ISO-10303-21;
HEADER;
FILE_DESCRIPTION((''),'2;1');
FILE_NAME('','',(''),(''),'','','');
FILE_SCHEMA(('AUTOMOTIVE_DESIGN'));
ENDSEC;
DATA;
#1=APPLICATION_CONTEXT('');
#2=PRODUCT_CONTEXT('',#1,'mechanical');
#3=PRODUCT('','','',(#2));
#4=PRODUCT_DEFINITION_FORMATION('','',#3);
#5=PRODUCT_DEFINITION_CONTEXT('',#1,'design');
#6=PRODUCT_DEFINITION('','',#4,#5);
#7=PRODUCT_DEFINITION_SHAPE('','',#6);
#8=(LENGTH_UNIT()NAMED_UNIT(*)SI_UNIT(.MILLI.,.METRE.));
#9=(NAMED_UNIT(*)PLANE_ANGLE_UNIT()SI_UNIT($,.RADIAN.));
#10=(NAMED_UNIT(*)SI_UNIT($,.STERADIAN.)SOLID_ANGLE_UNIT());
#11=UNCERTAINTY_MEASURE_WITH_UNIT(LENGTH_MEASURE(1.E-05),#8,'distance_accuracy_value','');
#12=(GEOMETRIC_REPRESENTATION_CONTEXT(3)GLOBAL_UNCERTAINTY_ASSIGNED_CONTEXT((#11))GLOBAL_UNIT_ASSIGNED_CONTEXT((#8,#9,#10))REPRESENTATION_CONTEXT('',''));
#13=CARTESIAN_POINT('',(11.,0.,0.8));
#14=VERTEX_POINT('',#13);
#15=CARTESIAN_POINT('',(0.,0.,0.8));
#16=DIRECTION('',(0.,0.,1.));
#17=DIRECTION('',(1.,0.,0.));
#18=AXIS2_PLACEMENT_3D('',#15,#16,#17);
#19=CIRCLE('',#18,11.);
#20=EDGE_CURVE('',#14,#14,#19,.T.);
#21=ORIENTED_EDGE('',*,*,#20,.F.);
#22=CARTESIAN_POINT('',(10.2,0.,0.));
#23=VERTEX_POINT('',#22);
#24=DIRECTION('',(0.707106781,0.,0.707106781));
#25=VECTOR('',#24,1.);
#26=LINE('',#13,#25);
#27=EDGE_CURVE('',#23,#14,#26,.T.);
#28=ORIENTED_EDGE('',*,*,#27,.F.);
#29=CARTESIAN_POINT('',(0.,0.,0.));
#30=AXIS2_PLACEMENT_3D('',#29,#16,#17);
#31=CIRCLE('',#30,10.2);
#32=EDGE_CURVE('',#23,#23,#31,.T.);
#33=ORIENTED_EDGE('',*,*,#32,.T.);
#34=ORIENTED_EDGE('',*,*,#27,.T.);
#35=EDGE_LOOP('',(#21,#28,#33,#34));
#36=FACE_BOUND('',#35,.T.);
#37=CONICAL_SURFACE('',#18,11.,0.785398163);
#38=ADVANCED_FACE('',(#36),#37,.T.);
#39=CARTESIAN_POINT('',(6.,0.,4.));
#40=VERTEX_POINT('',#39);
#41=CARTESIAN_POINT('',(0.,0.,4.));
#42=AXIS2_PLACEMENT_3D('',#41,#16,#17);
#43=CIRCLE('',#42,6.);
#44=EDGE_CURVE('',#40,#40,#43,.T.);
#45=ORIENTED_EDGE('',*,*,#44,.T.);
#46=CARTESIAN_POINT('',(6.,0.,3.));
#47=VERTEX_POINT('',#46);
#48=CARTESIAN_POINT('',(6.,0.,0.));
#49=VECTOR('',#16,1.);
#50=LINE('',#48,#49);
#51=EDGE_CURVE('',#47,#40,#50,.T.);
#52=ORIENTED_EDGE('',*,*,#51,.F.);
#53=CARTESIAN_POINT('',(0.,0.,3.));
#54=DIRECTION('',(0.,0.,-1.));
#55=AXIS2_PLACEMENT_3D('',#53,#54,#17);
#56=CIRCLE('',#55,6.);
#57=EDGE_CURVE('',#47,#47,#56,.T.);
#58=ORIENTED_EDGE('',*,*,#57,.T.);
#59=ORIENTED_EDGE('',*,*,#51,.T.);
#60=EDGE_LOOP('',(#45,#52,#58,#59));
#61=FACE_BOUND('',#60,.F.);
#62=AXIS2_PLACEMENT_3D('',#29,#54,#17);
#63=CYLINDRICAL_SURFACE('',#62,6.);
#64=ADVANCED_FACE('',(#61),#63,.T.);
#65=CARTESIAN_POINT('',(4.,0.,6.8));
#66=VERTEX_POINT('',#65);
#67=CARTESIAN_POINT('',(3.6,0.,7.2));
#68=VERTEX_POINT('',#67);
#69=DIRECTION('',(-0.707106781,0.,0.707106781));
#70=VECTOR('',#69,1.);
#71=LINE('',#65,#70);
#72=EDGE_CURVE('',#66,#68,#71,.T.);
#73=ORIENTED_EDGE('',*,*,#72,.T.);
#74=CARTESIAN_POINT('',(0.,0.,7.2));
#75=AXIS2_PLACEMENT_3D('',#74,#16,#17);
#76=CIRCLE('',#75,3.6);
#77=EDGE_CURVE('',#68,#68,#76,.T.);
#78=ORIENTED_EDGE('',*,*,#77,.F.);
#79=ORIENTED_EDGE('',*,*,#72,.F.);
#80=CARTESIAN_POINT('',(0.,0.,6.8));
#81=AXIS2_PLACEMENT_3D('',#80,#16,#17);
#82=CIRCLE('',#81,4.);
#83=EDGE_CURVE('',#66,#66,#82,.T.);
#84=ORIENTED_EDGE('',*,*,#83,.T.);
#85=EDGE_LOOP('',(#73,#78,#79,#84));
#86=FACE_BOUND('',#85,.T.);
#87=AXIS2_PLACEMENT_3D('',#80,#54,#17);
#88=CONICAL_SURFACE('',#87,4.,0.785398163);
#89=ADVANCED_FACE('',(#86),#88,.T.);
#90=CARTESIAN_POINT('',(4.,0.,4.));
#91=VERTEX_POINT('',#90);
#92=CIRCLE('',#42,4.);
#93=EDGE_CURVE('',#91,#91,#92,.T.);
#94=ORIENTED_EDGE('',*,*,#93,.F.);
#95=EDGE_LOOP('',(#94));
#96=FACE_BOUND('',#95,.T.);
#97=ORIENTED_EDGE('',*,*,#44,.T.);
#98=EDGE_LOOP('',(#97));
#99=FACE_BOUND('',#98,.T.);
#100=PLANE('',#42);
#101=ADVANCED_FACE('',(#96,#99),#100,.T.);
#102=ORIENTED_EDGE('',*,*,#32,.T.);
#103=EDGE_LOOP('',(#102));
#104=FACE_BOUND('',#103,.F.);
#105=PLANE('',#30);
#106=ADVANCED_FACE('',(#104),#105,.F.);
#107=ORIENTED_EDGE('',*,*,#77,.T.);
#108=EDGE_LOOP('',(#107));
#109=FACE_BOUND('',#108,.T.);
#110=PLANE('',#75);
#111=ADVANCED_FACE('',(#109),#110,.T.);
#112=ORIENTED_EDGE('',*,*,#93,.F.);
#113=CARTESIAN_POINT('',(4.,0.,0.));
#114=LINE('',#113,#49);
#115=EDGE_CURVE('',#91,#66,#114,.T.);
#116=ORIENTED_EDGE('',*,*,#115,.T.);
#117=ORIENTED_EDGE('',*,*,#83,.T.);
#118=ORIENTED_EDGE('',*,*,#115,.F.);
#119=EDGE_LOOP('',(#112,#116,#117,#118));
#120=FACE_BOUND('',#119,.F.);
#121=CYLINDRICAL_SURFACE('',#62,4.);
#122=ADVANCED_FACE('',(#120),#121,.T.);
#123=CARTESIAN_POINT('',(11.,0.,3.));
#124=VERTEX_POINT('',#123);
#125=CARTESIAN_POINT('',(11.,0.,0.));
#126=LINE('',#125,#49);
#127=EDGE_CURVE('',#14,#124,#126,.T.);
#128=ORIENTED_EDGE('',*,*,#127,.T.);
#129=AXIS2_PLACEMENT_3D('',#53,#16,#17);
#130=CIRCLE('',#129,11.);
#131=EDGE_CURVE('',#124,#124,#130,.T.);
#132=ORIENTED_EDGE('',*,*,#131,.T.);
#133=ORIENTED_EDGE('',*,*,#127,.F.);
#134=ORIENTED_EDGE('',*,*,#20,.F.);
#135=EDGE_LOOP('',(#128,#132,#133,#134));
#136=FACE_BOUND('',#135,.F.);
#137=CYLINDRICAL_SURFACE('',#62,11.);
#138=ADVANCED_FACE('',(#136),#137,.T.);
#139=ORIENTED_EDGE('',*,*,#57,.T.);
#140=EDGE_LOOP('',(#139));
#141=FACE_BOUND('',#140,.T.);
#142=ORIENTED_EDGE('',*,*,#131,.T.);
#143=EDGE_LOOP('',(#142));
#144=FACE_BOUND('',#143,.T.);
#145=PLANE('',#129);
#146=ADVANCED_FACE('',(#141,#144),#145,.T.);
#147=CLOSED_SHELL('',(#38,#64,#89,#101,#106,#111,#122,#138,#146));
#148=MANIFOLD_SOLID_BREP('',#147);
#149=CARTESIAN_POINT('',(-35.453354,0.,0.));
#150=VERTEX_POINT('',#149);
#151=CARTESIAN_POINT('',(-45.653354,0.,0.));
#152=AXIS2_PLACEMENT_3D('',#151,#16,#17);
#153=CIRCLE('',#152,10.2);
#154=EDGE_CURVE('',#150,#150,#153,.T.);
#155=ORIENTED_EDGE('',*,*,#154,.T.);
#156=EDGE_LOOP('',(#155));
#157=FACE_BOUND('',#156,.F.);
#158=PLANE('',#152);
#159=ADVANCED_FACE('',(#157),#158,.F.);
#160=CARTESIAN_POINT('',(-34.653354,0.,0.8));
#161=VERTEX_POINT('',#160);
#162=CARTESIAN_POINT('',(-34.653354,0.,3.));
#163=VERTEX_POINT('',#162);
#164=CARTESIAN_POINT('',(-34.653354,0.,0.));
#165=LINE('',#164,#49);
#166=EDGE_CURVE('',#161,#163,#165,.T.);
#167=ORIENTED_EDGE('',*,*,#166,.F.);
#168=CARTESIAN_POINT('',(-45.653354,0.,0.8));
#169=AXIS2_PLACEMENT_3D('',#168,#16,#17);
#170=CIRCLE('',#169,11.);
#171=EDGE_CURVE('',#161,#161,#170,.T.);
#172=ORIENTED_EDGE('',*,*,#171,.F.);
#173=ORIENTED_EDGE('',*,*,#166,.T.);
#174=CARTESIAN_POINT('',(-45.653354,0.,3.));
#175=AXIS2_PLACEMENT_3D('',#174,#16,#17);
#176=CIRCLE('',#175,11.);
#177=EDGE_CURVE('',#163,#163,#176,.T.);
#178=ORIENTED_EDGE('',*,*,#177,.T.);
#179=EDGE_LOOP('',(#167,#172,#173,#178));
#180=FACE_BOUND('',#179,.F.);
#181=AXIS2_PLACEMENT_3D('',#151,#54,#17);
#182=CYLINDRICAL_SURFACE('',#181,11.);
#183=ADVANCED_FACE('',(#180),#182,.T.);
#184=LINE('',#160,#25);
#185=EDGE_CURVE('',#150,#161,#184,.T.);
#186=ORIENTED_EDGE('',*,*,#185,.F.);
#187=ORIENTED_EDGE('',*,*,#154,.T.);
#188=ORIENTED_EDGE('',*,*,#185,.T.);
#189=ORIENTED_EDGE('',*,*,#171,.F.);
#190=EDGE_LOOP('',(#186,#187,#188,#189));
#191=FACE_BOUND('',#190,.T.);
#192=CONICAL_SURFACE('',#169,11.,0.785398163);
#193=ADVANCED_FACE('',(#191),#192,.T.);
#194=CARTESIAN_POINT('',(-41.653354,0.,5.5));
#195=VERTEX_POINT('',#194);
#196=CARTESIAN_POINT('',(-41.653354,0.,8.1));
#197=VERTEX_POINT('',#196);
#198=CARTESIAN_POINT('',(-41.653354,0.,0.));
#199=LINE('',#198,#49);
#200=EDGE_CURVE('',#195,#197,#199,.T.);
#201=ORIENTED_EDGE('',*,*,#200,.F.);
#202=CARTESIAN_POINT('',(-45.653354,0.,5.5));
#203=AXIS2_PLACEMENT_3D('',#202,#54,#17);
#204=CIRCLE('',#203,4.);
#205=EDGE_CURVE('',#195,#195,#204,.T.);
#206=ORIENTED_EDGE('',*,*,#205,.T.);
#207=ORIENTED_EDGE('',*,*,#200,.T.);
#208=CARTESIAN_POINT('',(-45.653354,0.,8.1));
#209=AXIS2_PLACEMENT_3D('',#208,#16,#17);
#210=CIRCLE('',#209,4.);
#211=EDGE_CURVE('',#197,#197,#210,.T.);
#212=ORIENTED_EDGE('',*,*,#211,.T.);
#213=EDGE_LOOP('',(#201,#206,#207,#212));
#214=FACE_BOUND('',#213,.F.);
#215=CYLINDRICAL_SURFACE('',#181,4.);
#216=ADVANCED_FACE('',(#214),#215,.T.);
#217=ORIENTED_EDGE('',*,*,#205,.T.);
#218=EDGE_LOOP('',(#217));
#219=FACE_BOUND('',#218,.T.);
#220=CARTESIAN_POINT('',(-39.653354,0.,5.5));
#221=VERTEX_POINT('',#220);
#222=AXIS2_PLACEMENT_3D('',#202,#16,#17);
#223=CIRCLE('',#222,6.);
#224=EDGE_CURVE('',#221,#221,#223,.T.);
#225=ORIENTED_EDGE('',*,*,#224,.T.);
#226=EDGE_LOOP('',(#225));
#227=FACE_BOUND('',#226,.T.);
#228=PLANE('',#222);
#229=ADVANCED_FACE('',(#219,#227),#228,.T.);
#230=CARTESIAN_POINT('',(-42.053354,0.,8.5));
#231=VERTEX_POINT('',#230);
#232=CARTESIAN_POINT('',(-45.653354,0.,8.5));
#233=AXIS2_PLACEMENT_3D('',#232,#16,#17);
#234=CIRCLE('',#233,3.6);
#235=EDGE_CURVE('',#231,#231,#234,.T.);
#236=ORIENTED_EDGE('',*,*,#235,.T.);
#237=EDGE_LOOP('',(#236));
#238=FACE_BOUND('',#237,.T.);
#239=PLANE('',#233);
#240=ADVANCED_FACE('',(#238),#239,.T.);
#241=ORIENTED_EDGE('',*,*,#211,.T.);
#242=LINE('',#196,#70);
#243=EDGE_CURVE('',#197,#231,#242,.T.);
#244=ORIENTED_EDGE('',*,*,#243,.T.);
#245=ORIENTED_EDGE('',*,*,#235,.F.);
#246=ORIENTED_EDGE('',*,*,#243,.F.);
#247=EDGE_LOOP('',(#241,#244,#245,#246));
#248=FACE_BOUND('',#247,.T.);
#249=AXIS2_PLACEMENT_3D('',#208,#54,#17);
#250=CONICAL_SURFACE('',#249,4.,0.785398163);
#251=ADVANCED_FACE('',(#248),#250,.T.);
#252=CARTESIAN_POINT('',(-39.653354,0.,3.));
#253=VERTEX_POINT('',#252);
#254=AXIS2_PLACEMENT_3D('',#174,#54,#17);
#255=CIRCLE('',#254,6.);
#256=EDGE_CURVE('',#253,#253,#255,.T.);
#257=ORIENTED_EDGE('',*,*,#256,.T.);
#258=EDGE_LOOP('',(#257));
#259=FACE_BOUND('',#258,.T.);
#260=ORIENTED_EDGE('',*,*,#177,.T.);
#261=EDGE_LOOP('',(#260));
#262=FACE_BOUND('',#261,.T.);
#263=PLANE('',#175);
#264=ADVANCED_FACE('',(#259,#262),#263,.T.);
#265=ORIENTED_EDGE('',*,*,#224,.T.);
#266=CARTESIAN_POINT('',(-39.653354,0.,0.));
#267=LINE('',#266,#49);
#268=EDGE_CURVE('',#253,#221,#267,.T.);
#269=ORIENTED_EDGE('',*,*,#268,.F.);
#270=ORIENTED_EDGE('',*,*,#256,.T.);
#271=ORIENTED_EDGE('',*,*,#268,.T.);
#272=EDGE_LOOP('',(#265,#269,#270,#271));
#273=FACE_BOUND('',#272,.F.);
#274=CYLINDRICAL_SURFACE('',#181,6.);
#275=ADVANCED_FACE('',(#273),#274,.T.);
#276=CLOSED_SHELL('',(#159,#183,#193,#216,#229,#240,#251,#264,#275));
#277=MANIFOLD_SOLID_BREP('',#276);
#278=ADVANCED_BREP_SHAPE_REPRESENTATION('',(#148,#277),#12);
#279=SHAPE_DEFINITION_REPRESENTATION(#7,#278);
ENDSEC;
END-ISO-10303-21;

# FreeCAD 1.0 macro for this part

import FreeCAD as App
import Part
import Sketcher
Q = App.Units.Quantity


def edges_at(feature, points):
    """Names of the edges that pass closest to the given points."""
    edges = feature.Shape.Edges
    near = lambda p: min(range(len(edges)), key=lambda i: edges[i].distToShape(Part.Vertex(*p))[0])
    return sorted({f"Edge{near(p) + 1}" for p in points})

doc = App.newDocument("Part")
params = doc.addObject("Spreadsheet::Sheet", "Params")
for row, (alias, value) in enumerate([
    ("sketch1_diameter", "22 mm"),
    ("sketch1_diameter2", "8 mm"),
    ("pad1_length", "3 mm"),
    ("sketch2_diameter", "12 mm"),
    ("pad2_length", "5.5 mm"),
    ("sketch3_diameter", "8 mm"),
    ("pad3_length", "8.5 mm"),
    ("chamfer_size", "0.8 mm"),
    ("chamfer2_size", "0.4 mm"),
    ("sketch4_diameter", "22 mm"),
    ("pad4_length", "3 mm"),
    ("sketch5_diameter", "12 mm"),
    ("sketch5_diameter2", "8 mm"),
    ("pad5_length", "4 mm"),
    ("sketch6_diameter", "8 mm"),
    ("pad6_length", "7.2 mm"),
    ("chamfer3_size", "0.8 mm"),
    ("chamfer4_size", "0.4 mm"),
], start=1):
    params.set(f"A{row}", alias)
    params.set(f"B{row}", "=" + value)
    params.setAlias(f"B{row}", alias)

body = doc.addObject("PartDesign::Body", "Body")

sketch1 = body.newObject("Sketcher::SketchObject", "Sketch")
sketch1.AttachmentSupport = (doc.getObject("XY_Plane"), [""])
sketch1.MapMode = "FlatFace"
sketch1.addGeometry([
    Part.Circle(App.Vector(-45.7, 0, 0), App.Vector(0, 0, 1), 11),
    Part.Circle(App.Vector(-45.7, 0, 0), App.Vector(0, 0, 1), 4),
], False)
sketch1.addConstraint([
    Sketcher.Constraint("Coincident", 1, 3, 0, 3),
    Sketcher.Constraint("PointOnObject", 0, 3, -1),
    Sketcher.Constraint("Diameter", 0, Q("22 mm")),
    Sketcher.Constraint("Diameter", 1, Q("8 mm")),
    Sketcher.Constraint("DistanceX", 0, 3, -1, 1, Q("45.653354 mm")),
])
sketch1.setExpression("Constraints[2]", "Params.sketch1_diameter")
sketch1.setExpression("Constraints[3]", "Params.sketch1_diameter2")
pad1 = body.newObject("PartDesign::Pad", "Pad")
pad1.Profile = sketch1
pad1.setExpression("Length", "Params.pad1_length")

sketch2 = body.newObject("Sketcher::SketchObject", "Sketch001")
sketch2.AttachmentSupport = (doc.getObject("XY_Plane"), [""])
sketch2.MapMode = "FlatFace"
sketch2.addGeometry(Part.Circle(App.Vector(-46, 0, 0), App.Vector(0, 0, 1), 6), False)
sketch2.addConstraint([
    Sketcher.Constraint("PointOnObject", 0, 3, -1),
    Sketcher.Constraint("Diameter", 0, Q("12 mm")),
    Sketcher.Constraint("DistanceX", 0, 3, -1, 1, Q("45.653354 mm")),
])
sketch2.setExpression("Constraints[1]", "Params.sketch2_diameter")
pad2 = body.newObject("PartDesign::Pad", "Pad001")
pad2.Profile = sketch2
pad2.setExpression("Length", "Params.pad2_length")

sketch3 = body.newObject("Sketcher::SketchObject", "Sketch002")
sketch3.AttachmentSupport = (doc.getObject("XY_Plane"), [""])
sketch3.MapMode = "FlatFace"
sketch3.addGeometry(Part.Circle(App.Vector(-45.7, 0, 0), App.Vector(0, 0, 1), 4), False)
sketch3.addConstraint([
    Sketcher.Constraint("PointOnObject", 0, 3, -1),
    Sketcher.Constraint("Diameter", 0, Q("8 mm")),
    Sketcher.Constraint("DistanceX", 0, 3, -1, 1, Q("45.653354 mm")),
])
sketch3.setExpression("Constraints[1]", "Params.sketch3_diameter")
pad3 = body.newObject("PartDesign::Pad", "Pad002")
pad3.Profile = sketch3
pad3.setExpression("Length", "Params.pad3_length")
doc.recompute()

chamfer = body.newObject("PartDesign::Chamfer", "Chamfer")
chamfer.Base = (pad3, edges_at(pad3, [(-56.653, 0, 0)]))
chamfer.setExpression("Size", "Params.chamfer_size")
doc.recompute()

chamfer2 = body.newObject("PartDesign::Chamfer", "Chamfer001")
chamfer2.Base = (chamfer, edges_at(chamfer, [(-49.653, 0, 8.5)]))
chamfer2.setExpression("Size", "Params.chamfer2_size")
body2 = doc.addObject("PartDesign::Body", "Body001")

sketch4 = body2.newObject("Sketcher::SketchObject", "Sketch003")
sketch4.AttachmentSupport = (doc.getObject("XY_Plane001"), [""])
sketch4.MapMode = "FlatFace"
sketch4.addGeometry(Part.Circle(App.Vector(0, 0, 0), App.Vector(0, 0, 1), 11), False)
sketch4.addConstraint([
    Sketcher.Constraint("Coincident", 0, 3, -1, 1),
    Sketcher.Constraint("Diameter", 0, Q("22 mm")),
])
sketch4.setExpression("Constraints[1]", "Params.sketch4_diameter")
pad4 = body2.newObject("PartDesign::Pad", "Pad003")
pad4.Profile = sketch4
pad4.setExpression("Length", "Params.pad4_length")

sketch5 = body2.newObject("Sketcher::SketchObject", "Sketch004")
sketch5.AttachmentSupport = (doc.getObject("XY_Plane001"), [""])
sketch5.MapMode = "FlatFace"
sketch5.addGeometry([
    Part.Circle(App.Vector(0, 0, 0), App.Vector(0, 0, 1), 6),
    Part.Circle(App.Vector(0, 0, 0), App.Vector(0, 0, 1), 4),
], False)
sketch5.addConstraint([
    Sketcher.Constraint("Coincident", 0, 3, -1, 1),
    Sketcher.Constraint("Coincident", 1, 3, -1, 1),
    Sketcher.Constraint("Diameter", 0, Q("12 mm")),
    Sketcher.Constraint("Diameter", 1, Q("8 mm")),
])
sketch5.setExpression("Constraints[2]", "Params.sketch5_diameter")
sketch5.setExpression("Constraints[3]", "Params.sketch5_diameter2")
pad5 = body2.newObject("PartDesign::Pad", "Pad004")
pad5.Profile = sketch5
pad5.setExpression("Length", "Params.pad5_length")

sketch6 = body2.newObject("Sketcher::SketchObject", "Sketch005")
sketch6.AttachmentSupport = (doc.getObject("XY_Plane001"), [""])
sketch6.MapMode = "FlatFace"
sketch6.addGeometry(Part.Circle(App.Vector(0, 0, 0), App.Vector(0, 0, 1), 4), False)
sketch6.addConstraint([
    Sketcher.Constraint("Coincident", 0, 3, -1, 1),
    Sketcher.Constraint("Diameter", 0, Q("8 mm")),
])
sketch6.setExpression("Constraints[1]", "Params.sketch6_diameter")
pad6 = body2.newObject("PartDesign::Pad", "Pad005")
pad6.Profile = sketch6
pad6.setExpression("Length", "Params.pad6_length")
doc.recompute()

chamfer3 = body2.newObject("PartDesign::Chamfer", "Chamfer002")
chamfer3.Base = (pad6, edges_at(pad6, [(-11, 0, 0)]))
chamfer3.setExpression("Size", "Params.chamfer3_size")
doc.recompute()

chamfer4 = body2.newObject("PartDesign::Chamfer", "Chamfer003")
chamfer4.Base = (chamfer3, edges_at(chamfer3, [(-4, 0, 7.2)]))
chamfer4.setExpression("Size", "Params.chamfer4_size")

doc.recompute()
